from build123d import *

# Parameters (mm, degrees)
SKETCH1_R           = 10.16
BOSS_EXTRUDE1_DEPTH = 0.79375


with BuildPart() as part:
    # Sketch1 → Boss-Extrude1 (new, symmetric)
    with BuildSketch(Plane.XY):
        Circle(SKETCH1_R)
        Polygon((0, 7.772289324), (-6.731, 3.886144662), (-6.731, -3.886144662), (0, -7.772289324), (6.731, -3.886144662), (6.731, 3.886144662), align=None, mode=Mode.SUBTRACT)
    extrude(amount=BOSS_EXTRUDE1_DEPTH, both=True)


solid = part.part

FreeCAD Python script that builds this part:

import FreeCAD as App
import Part
import Sketcher
from FreeCAD import Vector
Q = App.Units.Quantity

doc = App.newDocument("Part")
body = doc.addObject("PartDesign::Body", "Body")

sketch1 = body.newObject("Sketcher::SketchObject", "Sketch")
sketch1.AttachmentSupport = (doc.getObject("XY_Plane"), [""])
sketch1.MapMode = "FlatFace"
sketch1.addGeometry(Part.Circle(Vector(0, 0, 0), Vector(0, 0, 1), 10), False)
sketch1.addGeometry(Part.LineSegment(Vector(-7, 4, 0), Vector(0, 8, 0)), False)
sketch1.addGeometry(Part.LineSegment(Vector(0, 8, 0), Vector(7, 4, 0)), False)
sketch1.addGeometry(Part.LineSegment(Vector(7, 4, 0), Vector(7, -4, 0)), False)
sketch1.addGeometry(Part.LineSegment(Vector(7, -4, 0), Vector(0, -8, 0)), False)
sketch1.addGeometry(Part.LineSegment(Vector(0, -8, 0), Vector(-7, -4, 0)), False)
sketch1.addGeometry(Part.LineSegment(Vector(-7, -4, 0), Vector(-7, 4, 0)), False)
sketch1.addConstraint(Sketcher.Constraint("Coincident", 1, 2, 2, 1))
sketch1.addConstraint(Sketcher.Constraint("Coincident", 2, 2, 3, 1))
sketch1.addConstraint(Sketcher.Constraint("Coincident", 3, 2, 4, 1))
sketch1.addConstraint(Sketcher.Constraint("Coincident", 4, 2, 5, 1))
sketch1.addConstraint(Sketcher.Constraint("Coincident", 5, 2, 6, 1))
sketch1.addConstraint(Sketcher.Constraint("Coincident", 6, 2, 1, 1))
sketch1.addConstraint(Sketcher.Constraint("Vertical", 3))
sketch1.addConstraint(Sketcher.Constraint("Vertical", 6))
sketch1.addConstraint(Sketcher.Constraint("Coincident", 0, 3, -1, 1))
sketch1.addConstraint(Sketcher.Constraint("Symmetric", 1, 2, 4, 2, -1, 1))
sketch1.addConstraint(Sketcher.Constraint("Symmetric", 2, 2, 5, 2, -1, 1))
sketch1.addConstraint(Sketcher.Constraint("PointOnObject", 1, 2, -2))
sketch1.addConstraint(Sketcher.Constraint("Parallel", 1, 4))
sketch1.addConstraint(Sketcher.Constraint("Horizontal", 3, 2, 5, 2))
sketch1.addConstraint(Sketcher.Constraint("Diameter", 0, Q("0.8 in")))
sketch1.addConstraint(Sketcher.Constraint("Angle", 1, Q("30 deg")))
sketch1.addConstraint(Sketcher.Constraint("DistanceX", 5, 2, 3, 2, Q("0.53 in")))
sketch1.addConstraint(Sketcher.Constraint("DistanceY", 3, 2, 3, 1, 7.772289))
pad1 = body.newObject("PartDesign::Pad", "Pad")
pad1.Profile = sketch1
pad1.Length = Q("0.0625 in")
pad1.Midplane = True

doc.recompute()
